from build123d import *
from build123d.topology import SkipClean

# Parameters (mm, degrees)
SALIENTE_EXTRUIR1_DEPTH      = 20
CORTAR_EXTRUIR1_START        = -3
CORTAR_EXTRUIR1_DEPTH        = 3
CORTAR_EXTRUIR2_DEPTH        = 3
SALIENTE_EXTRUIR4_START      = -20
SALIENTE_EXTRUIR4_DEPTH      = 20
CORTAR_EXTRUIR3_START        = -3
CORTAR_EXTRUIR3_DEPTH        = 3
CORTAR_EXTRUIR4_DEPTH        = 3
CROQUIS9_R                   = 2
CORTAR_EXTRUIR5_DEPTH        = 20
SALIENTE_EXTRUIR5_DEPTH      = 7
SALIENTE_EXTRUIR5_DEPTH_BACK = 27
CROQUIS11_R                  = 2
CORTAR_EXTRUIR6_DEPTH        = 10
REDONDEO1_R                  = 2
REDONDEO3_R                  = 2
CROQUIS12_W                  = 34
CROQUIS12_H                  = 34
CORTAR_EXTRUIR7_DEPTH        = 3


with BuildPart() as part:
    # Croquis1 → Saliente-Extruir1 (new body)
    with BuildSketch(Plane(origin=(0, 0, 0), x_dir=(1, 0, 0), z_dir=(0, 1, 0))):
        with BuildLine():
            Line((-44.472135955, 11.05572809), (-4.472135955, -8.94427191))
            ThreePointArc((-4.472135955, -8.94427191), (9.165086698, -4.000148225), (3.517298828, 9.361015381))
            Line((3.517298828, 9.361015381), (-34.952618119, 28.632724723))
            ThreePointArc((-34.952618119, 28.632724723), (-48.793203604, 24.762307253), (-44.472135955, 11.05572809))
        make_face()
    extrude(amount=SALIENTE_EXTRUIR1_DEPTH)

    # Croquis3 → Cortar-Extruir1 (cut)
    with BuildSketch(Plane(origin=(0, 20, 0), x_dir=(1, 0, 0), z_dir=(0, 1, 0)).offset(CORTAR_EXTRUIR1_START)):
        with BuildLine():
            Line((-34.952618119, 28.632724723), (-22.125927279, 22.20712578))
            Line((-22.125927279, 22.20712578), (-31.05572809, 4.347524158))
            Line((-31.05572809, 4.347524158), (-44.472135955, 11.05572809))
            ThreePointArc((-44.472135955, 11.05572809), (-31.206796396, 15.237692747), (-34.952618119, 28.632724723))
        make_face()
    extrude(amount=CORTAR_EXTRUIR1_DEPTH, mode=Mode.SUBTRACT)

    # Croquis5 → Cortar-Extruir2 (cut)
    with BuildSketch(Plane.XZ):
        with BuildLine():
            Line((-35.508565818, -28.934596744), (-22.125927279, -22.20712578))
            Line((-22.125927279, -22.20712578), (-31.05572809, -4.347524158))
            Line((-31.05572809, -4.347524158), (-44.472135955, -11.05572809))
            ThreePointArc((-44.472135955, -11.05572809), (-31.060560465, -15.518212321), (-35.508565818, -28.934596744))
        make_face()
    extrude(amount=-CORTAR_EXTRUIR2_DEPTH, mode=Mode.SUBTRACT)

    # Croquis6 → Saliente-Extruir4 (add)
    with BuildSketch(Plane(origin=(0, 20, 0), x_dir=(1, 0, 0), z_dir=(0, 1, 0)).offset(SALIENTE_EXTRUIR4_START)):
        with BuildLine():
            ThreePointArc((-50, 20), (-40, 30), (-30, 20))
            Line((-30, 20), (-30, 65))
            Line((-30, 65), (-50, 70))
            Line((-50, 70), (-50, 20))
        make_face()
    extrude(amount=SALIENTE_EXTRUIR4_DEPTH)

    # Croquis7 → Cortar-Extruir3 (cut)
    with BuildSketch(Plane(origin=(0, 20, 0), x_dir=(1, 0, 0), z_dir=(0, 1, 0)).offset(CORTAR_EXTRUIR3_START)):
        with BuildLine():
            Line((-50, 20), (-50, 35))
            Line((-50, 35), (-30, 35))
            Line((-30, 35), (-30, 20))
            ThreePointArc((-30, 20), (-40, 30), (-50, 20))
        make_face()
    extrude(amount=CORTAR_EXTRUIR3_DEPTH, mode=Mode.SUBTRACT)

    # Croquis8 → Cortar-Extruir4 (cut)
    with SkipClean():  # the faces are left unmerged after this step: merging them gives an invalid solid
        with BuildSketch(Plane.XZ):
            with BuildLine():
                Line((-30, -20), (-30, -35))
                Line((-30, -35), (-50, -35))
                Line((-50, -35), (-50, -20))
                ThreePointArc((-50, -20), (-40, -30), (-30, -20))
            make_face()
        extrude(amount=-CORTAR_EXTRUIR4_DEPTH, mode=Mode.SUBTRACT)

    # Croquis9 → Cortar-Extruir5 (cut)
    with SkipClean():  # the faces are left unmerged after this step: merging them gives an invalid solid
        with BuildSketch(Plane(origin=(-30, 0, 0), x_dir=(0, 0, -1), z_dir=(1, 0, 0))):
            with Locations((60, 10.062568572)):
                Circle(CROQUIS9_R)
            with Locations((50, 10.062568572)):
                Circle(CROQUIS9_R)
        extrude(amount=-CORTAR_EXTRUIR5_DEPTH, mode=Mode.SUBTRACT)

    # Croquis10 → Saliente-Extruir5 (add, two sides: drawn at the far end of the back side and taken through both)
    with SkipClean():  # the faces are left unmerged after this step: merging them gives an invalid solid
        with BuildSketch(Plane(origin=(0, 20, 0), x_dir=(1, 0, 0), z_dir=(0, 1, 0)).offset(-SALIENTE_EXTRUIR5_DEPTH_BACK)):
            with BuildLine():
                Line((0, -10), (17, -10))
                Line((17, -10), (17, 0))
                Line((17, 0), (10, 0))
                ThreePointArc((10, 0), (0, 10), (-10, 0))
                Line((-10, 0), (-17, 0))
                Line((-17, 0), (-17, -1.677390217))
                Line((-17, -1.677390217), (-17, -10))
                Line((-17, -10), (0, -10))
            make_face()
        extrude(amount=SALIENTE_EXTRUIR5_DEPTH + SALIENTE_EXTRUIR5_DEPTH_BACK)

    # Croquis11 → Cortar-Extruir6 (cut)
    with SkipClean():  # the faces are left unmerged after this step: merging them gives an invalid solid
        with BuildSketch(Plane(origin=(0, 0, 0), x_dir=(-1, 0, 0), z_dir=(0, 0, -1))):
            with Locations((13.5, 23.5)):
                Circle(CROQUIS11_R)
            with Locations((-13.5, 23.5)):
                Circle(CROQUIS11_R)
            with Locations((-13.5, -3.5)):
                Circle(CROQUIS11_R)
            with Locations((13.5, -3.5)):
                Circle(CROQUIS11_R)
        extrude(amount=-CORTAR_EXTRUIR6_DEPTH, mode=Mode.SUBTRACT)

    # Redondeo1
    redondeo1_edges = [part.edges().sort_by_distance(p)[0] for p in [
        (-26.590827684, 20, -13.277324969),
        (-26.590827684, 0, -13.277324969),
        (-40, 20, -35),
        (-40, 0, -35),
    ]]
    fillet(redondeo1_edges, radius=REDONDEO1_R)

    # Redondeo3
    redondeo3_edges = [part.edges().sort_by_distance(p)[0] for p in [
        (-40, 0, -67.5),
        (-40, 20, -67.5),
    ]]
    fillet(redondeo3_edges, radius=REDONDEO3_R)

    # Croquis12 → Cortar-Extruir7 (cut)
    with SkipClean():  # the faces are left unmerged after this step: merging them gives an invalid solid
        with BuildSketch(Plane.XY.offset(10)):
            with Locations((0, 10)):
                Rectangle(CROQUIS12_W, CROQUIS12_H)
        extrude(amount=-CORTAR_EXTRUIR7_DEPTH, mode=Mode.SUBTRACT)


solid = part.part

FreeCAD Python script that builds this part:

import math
import FreeCAD as App
import Part
import Sketcher

V = App.Vector


def edges_at(feature, points):
    """Names of the edges that pass closest to the given points."""
    edges = feature.Shape.Edges
    near = lambda p: min(range(len(edges)), key=lambda i: edges[i].distToShape(Part.Vertex(*p))[0])
    return sorted({f"Edge{near(p) + 1}" for p in points})


def add_polygon(sketch, points):
    """Adds a closed chain of lines whose ends are joined by coincident constraints."""
    first, n = sketch.GeometryCount, len(points)
    for a, b in zip(points, points[1:] + points[:1]):
        sketch.addGeometry(Part.LineSegment(App.Vector(*a, 0), App.Vector(*b, 0)), False)
    for i in range(n):
        sketch.addConstraint(Sketcher.Constraint("Coincident", first + i, 2, first + (i + 1) % n, 1))

doc = App.newDocument("Part")
params = doc.addObject("Spreadsheet::Sheet", "Params")
for row, (alias, value) in enumerate([
    ("sketch1_radius", "10 mm"),
    ("pad1_length", "20 mm"),
    ("sketch2_radius", "10 mm"),
    ("sketch2_length", "15 mm"),
    ("pocket1_length", "3 mm"),
    ("sketch3_radius", "10 mm"),
    ("sketch3_length", "15 mm"),
    ("pocket2_length", "3 mm"),
    ("sketch4_radius", "10 mm"),
    ("sketch4_height", "45 mm"),
    ("sketch4_height2", "50 mm"),
    ("pad2_length", "20 mm"),
    ("sketch5_radius", "10 mm"),
    ("sketch5_height", "15 mm"),
    ("pocket3_length", "3 mm"),
    ("sketch6_radius", "10 mm"),
    ("sketch6_height", "15 mm"),
    ("pocket4_length", "3 mm"),
    ("sketch7_diameter", "4 mm"),
    ("pocket5_length", "20 mm"),
    ("sketch8_radius", "10 mm"),
    ("sketch8_width", "7 mm"),
    ("sketch8_height", "10 mm"),
    ("pad3_length", "7 mm"),
    ("pad3_length2", "27 mm"),
    ("sketch9_diameter", "4 mm"),
    ("pocket6_length", "10 mm"),
    ("fillet_radius", "2 mm"),
    ("fillet2_radius", "2 mm"),
    ("sketch10_width", "34 mm"),
    ("pocket7_length", "3 mm"),
], start=1):
    params.set(f"A{row}", alias)
    params.set(f"B{row}", "=" + value)
    params.setAlias(f"B{row}", alias)

body = doc.addObject("PartDesign::Body", "Body")

# Sketch on XZ plane
sketch1 = body.newObject("Sketcher::SketchObject", "Sketch")
sketch1.AttachmentSupport = (doc.getObject("XZ_Plane"), [""])
sketch1.MapMode = "FlatFace"
sketch1.addGeometry(Part.LineSegment(V(-44, -11, 0), V(-4, 9, 0)), False)
sketch1.addGeometry(Part.ArcOfCircle(Part.Circle(V(0, 0, 0), V(0, 0, 1), 10), math.radians(-69), math.radians(117)), False)
sketch1.addGeometry(Part.LineSegment(V(4, -9, 0), V(-35, -29, 0)), False)
sketch1.addGeometry(Part.ArcOfCircle(Part.Circle(V(-40, -20, 0), V(0, 0, 1), 10), math.radians(117), math.radians(300)), False)
sketch1.addConstraint(Sketcher.Constraint("Tangent", 0, 2, 1, 2))
sketch1.addConstraint(Sketcher.Constraint("Coincident", 1, 1, 2, 1))
sketch1.addConstraint(Sketcher.Constraint("Coincident", 2, 2, 3, 2))
sketch1.addConstraint(Sketcher.Constraint("Tangent", 3, 1, 0, 1))
sketch1.addConstraint(Sketcher.Constraint("Coincident", 1, 3, -1, 1))
sketch1.addConstraint(Sketcher.Constraint("Equal", 1, 3))
sketch1.addConstraint(Sketcher.Constraint("Radius", 1, 10.0))
sketch1.addConstraint(Sketcher.Constraint("DistanceX", 3, 3, -1, 1, 40.0))
sketch1.addConstraint(Sketcher.Constraint("DistanceY", 3, 3, -1, 1, 20.0))
sketch1.addConstraint(Sketcher.Constraint("DistanceX", -1, 1, 1, 1, 3.517299))
sketch1.addConstraint(Sketcher.Constraint("DistanceX", 2, 2, -1, 1, 34.952618))
sketch1.setExpression("Constraints[6]", "Params.sketch1_radius")
pad1 = body.newObject("PartDesign::Pad", "Pad")
pad1.Profile = sketch1
pad1.setExpression("Length", "Params.pad1_length")
pad1.Reversed = True

# Sketch on XZ plane
sketch2 = body.newObject("Sketcher::SketchObject", "Sketch001")
sketch2.AttachmentSupport = (doc.getObject("XZ_Plane"), [""])
sketch2.MapMode = "FlatFace"
sketch2.AttachmentOffset = App.Placement(V(0, 0, -17), App.Rotation())
sketch2.addGeometry(Part.LineSegment(V(-22, -22, 0), V(-35, -29, 0)), False)
sketch2.addGeometry(Part.ArcOfCircle(Part.Circle(V(-40, -20, 0), V(0, 0, 1), 10), math.radians(-60), math.radians(117)), False)
sketch2.addGeometry(Part.LineSegment(V(-44, -11, 0), V(-31, -4, 0)), False)
sketch2.addGeometry(Part.LineSegment(V(-31, -4, 0), V(-22, -22, 0)), False)
sketch2.addConstraint(Sketcher.Constraint("Coincident", 0, 2, 1, 1))
sketch2.addConstraint(Sketcher.Constraint("Tangent", 1, 2, 2, 1))
sketch2.addConstraint(Sketcher.Constraint("Coincident", 2, 2, 3, 1))
sketch2.addConstraint(Sketcher.Constraint("Coincident", 3, 2, 0, 1))
sketch2.addConstraint(Sketcher.Constraint("Perpendicular", 2, 3))
sketch2.addConstraint(Sketcher.Constraint("Radius", 1, 10.0))
sketch2.addConstraint(Sketcher.Constraint("Distance", 2, 15.0))
sketch2.addConstraint(Sketcher.Constraint("DistanceX", 1, 3, -1, 1, 40.0))
sketch2.addConstraint(Sketcher.Constraint("DistanceY", 1, 3, -1, 1, 20.0))
sketch2.addConstraint(Sketcher.Constraint("DistanceY", 0, 2, 2, 2, 24.285201))
sketch2.addConstraint(Sketcher.Constraint("DistanceY", 0, 2, 3, 2, 6.425599))
sketch2.addConstraint(Sketcher.Constraint("DistanceX", 2, 2, 3, 2, 8.929801))
sketch2.setExpression("Constraints[5]", "Params.sketch2_radius")
sketch2.setExpression("Constraints[6]", "Params.sketch2_length")
pocket1 = body.newObject("PartDesign::Pocket", "Pocket")
pocket1.Profile = sketch2
pocket1.setExpression("Length", "Params.pocket1_length")

# Sketch on XZ plane
sketch3 = body.newObject("Sketcher::SketchObject", "Sketch002")
sketch3.AttachmentSupport = (doc.getObject("XZ_Plane"), [""])
sketch3.MapMode = "FlatFace"
sketch3.addGeometry(Part.LineSegment(V(-36, -29, 0), V(-22, -22, 0)), False)
sketch3.addGeometry(Part.LineSegment(V(-22, -22, 0), V(-31, -4, 0)), False)
sketch3.addGeometry(Part.LineSegment(V(-31, -4, 0), V(-44, -11, 0)), False)
sketch3.addGeometry(Part.ArcOfCircle(Part.Circle(V(-40, -20, 0), V(0, 0, 1), 10), math.radians(-63), math.radians(117)), False)
sketch3.addConstraint(Sketcher.Constraint("Coincident", 0, 2, 1, 1))
sketch3.addConstraint(Sketcher.Constraint("Coincident", 1, 2, 2, 1))
sketch3.addConstraint(Sketcher.Constraint("Tangent", 2, 2, 3, 2))
sketch3.addConstraint(Sketcher.Constraint("Tangent", 3, 1, 0, 1))
sketch3.addConstraint(Sketcher.Constraint("Perpendicular", 1, 2))
sketch3.addConstraint(Sketcher.Constraint("Radius", 3, 10.0))
sketch3.addConstraint(Sketcher.Constraint("Distance", 2, 15.0))
sketch3.addConstraint(Sketcher.Constraint("DistanceX", 3, 3, -1, 1, 40.0))
sketch3.addConstraint(Sketcher.Constraint("DistanceY", 3, 3, -1, 1, 20.0))
sketch3.addConstraint(Sketcher.Constraint("DistanceX", 1, 2, 0, 2, 8.929801))
sketch3.addConstraint(Sketcher.Constraint("DistanceY", 0, 2, 1, 2, 17.859602))
sketch3.setExpression("Constraints[5]", "Params.sketch3_radius")
sketch3.setExpression("Constraints[6]", "Params.sketch3_length")
pocket2 = body.newObject("PartDesign::Pocket", "Pocket001")
pocket2.Profile = sketch3
pocket2.setExpression("Length", "Params.pocket2_length")

# Sketch on XZ plane
sketch4 = body.newObject("Sketcher::SketchObject", "Sketch003")
sketch4.AttachmentSupport = (doc.getObject("XZ_Plane"), [""])
sketch4.MapMode = "FlatFace"
sketch4.addGeometry(Part.ArcOfCircle(Part.Circle(V(-40, -20, 0), V(0, 0, 1), 10), math.radians(180), math.radians(360)), False)
sketch4.addGeometry(Part.LineSegment(V(-30, -20, 0), V(-30, -65, 0)), False)
sketch4.addGeometry(Part.LineSegment(V(-30, -65, 0), V(-50, -70, 0)), False)
sketch4.addGeometry(Part.LineSegment(V(-50, -70, 0), V(-50, -20, 0)), False)
sketch4.addConstraint(Sketcher.Constraint("Tangent", 0, 2, 1, 1))
sketch4.addConstraint(Sketcher.Constraint("Coincident", 1, 2, 2, 1))
sketch4.addConstraint(Sketcher.Constraint("Coincident", 2, 2, 3, 1))
sketch4.addConstraint(Sketcher.Constraint("Tangent", 3, 2, 0, 1))
sketch4.addConstraint(Sketcher.Constraint("Vertical", 1))
sketch4.addConstraint(Sketcher.Constraint("Vertical", 3))
sketch4.addConstraint(Sketcher.Constraint("Radius", 0, 10.0))
sketch4.addConstraint(Sketcher.Constraint("DistanceY", 1, 2, 1, 1, 45.0))
sketch4.addConstraint(Sketcher.Constraint("DistanceY", 3, 1, 3, 2, 50.0))
sketch4.addConstraint(Sketcher.Constraint("DistanceX", 0, 3, -1, 1, 40.0))
sketch4.addConstraint(Sketcher.Constraint("DistanceY", 0, 3, -1, 1, 20.0))
sketch4.setExpression("Constraints[6]", "Params.sketch4_radius")
sketch4.setExpression("Constraints[7]", "Params.sketch4_height")
sketch4.setExpression("Constraints[8]", "Params.sketch4_height2")
pad2 = body.newObject("PartDesign::Pad", "Pad001")
pad2.Profile = sketch4
pad2.setExpression("Length", "Params.pad2_length")
pad2.Reversed = True

# Sketch on XZ plane
sketch5 = body.newObject("Sketcher::SketchObject", "Sketch004")
sketch5.AttachmentSupport = (doc.getObject("XZ_Plane"), [""])
sketch5.MapMode = "FlatFace"
sketch5.AttachmentOffset = App.Placement(V(0, 0, -17), App.Rotation())
sketch5.addGeometry(Part.LineSegment(V(-50, -35, 0), V(-50, -20, 0)), False)
sketch5.addGeometry(Part.ArcOfCircle(Part.Circle(V(-40, -20, 0), V(0, 0, 1), 10), math.radians(180), math.radians(360)), False)
sketch5.addGeometry(Part.LineSegment(V(-30, -20, 0), V(-30, -35, 0)), False)
sketch5.addGeometry(Part.LineSegment(V(-30, -35, 0), V(-50, -35, 0)), False)
sketch5.addConstraint(Sketcher.Constraint("Tangent", 0, 2, 1, 1))
sketch5.addConstraint(Sketcher.Constraint("Tangent", 1, 2, 2, 1))
sketch5.addConstraint(Sketcher.Constraint("Coincident", 2, 2, 3, 1))
sketch5.addConstraint(Sketcher.Constraint("Coincident", 3, 2, 0, 1))
sketch5.addConstraint(Sketcher.Constraint("Vertical", 0))
sketch5.addConstraint(Sketcher.Constraint("Vertical", 2))
sketch5.addConstraint(Sketcher.Constraint("Horizontal", 3))
sketch5.addConstraint(Sketcher.Constraint("Radius", 1, 10.0))
sketch5.addConstraint(Sketcher.Constraint("DistanceY", 0, 1, 0, 2, 15.0))
sketch5.addConstraint(Sketcher.Constraint("DistanceX", 1, 3, -1, 1, 40.0))
sketch5.addConstraint(Sketcher.Constraint("DistanceY", 1, 3, -1, 1, 20.0))
sketch5.setExpression("Constraints[7]", "Params.sketch5_radius")
sketch5.setExpression("Constraints[8]", "Params.sketch5_height")
pocket3 = body.newObject("PartDesign::Pocket", "Pocket002")
pocket3.Profile = sketch5
pocket3.setExpression("Length", "Params.pocket3_length")

# Sketch on XZ plane
sketch6 = body.newObject("Sketcher::SketchObject", "Sketch005")
sketch6.AttachmentSupport = (doc.getObject("XZ_Plane"), [""])
sketch6.MapMode = "FlatFace"
sketch6.addGeometry(Part.LineSegment(V(-30, -35, 0), V(-30, -20, 0)), False)
sketch6.addGeometry(Part.ArcOfCircle(Part.Circle(V(-40, -20, 0), V(0, 0, 1), 10), math.radians(180), math.radians(360)), False)
sketch6.addGeometry(Part.LineSegment(V(-50, -20, 0), V(-50, -35, 0)), False)
sketch6.addGeometry(Part.LineSegment(V(-50, -35, 0), V(-30, -35, 0)), False)
sketch6.addConstraint(Sketcher.Constraint("Tangent", 0, 2, 1, 2))
sketch6.addConstraint(Sketcher.Constraint("Tangent", 1, 1, 2, 1))
sketch6.addConstraint(Sketcher.Constraint("Coincident", 2, 2, 3, 1))
sketch6.addConstraint(Sketcher.Constraint("Coincident", 3, 2, 0, 1))
sketch6.addConstraint(Sketcher.Constraint("Vertical", 0))
sketch6.addConstraint(Sketcher.Constraint("Vertical", 2))
sketch6.addConstraint(Sketcher.Constraint("Horizontal", 3))
sketch6.addConstraint(Sketcher.Constraint("Radius", 1, 10.0))
sketch6.addConstraint(Sketcher.Constraint("DistanceY", 0, 1, 0, 2, 15.0))
sketch6.addConstraint(Sketcher.Constraint("DistanceX", 1, 3, -1, 1, 40.0))
sketch6.addConstraint(Sketcher.Constraint("DistanceY", 1, 3, -1, 1, 20.0))
sketch6.setExpression("Constraints[7]", "Params.sketch6_radius")
sketch6.setExpression("Constraints[8]", "Params.sketch6_height")
pocket4 = body.newObject("PartDesign::Pocket", "Pocket003")
pocket4.Profile = sketch6
pocket4.setExpression("Length", "Params.pocket4_length")

# Sketch on YZ plane
sketch7 = body.newObject("Sketcher::SketchObject", "Sketch006")
sketch7.AttachmentSupport = (doc.getObject("YZ_Plane"), [""])
sketch7.MapMode = "FlatFace"
sketch7.AttachmentOffset = App.Placement(V(0, 0, -30), App.Rotation())
sketch7.addGeometry(Part.Circle(V(10.1, -60, 0), V(0, 0, 1), 2), False)
sketch7.addGeometry(Part.Circle(V(10.1, -50, 0), V(0, 0, 1), 2), False)
sketch7.addConstraint(Sketcher.Constraint("Equal", 0, 1))
sketch7.addConstraint(Sketcher.Constraint("Vertical", 0, 3, 1, 3))
sketch7.addConstraint(Sketcher.Constraint("Diameter", 0, 4.0))
sketch7.addConstraint(Sketcher.Constraint("DistanceY", 0, 3, -1, 1, 60.0))
sketch7.addConstraint(Sketcher.Constraint("DistanceY", 1, 3, -1, 1, 50.0))
sketch7.addConstraint(Sketcher.Constraint("DistanceX", -1, 1, 0, 3, 10.062569))
sketch7.setExpression("Constraints[2]", "Params.sketch7_diameter")
pocket5 = body.newObject("PartDesign::Pocket", "Pocket004")
pocket5.Profile = sketch7
pocket5.setExpression("Length", "Params.pocket5_length")

# Sketch on XZ plane
sketch8 = body.newObject("Sketcher::SketchObject", "Sketch007")
sketch8.AttachmentSupport = (doc.getObject("XZ_Plane"), [""])
sketch8.MapMode = "FlatFace"
sketch8.AttachmentOffset = App.Placement(V(0, 0, -20), App.Rotation())
sketch8.addGeometry(Part.LineSegment(V(17, 10, 0), V(17, 0, 0)), False)
sketch8.addGeometry(Part.LineSegment(V(17, 0, 0), V(10, 0, 0)), False)
sketch8.addGeometry(Part.ArcOfCircle(Part.Circle(V(0, 0, 0), V(0, 0, 1), 10), math.radians(180), math.radians(360)), False)
sketch8.addGeometry(Part.LineSegment(V(-10, 0, 0), V(-17, 0, 0)), False)
sketch8.addGeometry(Part.LineSegment(V(-17, 0, 0), V(-17, 10, 0)), False)
sketch8.addGeometry(Part.LineSegment(V(-17, 10, 0), V(17, 10, 0)), False)
sketch8.addConstraint(Sketcher.Constraint("Coincident", 0, 2, 1, 1))
sketch8.addConstraint(Sketcher.Constraint("Coincident", 1, 2, 2, 2))
sketch8.addConstraint(Sketcher.Constraint("Coincident", 2, 1, 3, 1))
sketch8.addConstraint(Sketcher.Constraint("Coincident", 3, 2, 4, 1))
sketch8.addConstraint(Sketcher.Constraint("Coincident", 4, 2, 5, 1))
sketch8.addConstraint(Sketcher.Constraint("Coincident", 5, 2, 0, 1))
sketch8.addConstraint(Sketcher.Constraint("Vertical", 0))
sketch8.addConstraint(Sketcher.Constraint("Horizontal", 1))
sketch8.addConstraint(Sketcher.Constraint("Horizontal", 3))
sketch8.addConstraint(Sketcher.Constraint("Vertical", 4))
sketch8.addConstraint(Sketcher.Constraint("Horizontal", 5))
sketch8.addConstraint(Sketcher.Constraint("Coincident", 2, 3, -1, 1))
sketch8.addConstraint(Sketcher.Constraint("Symmetric", 0, 2, 3, 2, -1, 1))
sketch8.addConstraint(Sketcher.Constraint("PointOnObject", 0, 2, -1))
sketch8.addConstraint(Sketcher.Constraint("Radius", 2, 10.0))
sketch8.addConstraint(Sketcher.Constraint("DistanceX", 1, 2, 1, 1, 7.0))
sketch8.addConstraint(Sketcher.Constraint("DistanceY", 0, 2, 0, 1, 10.0))
sketch8.setExpression("Constraints[14]", "Params.sketch8_radius")
sketch8.setExpression("Constraints[15]", "Params.sketch8_width")
sketch8.setExpression("Constraints[16]", "Params.sketch8_height")
pad3 = body.newObject("PartDesign::Pad", "Pad002")
pad3.Profile = sketch8
pad3.Type = "TwoLengths"
pad3.setExpression("Length", "Params.pad3_length")
pad3.setExpression("Length2", "Params.pad3_length2")
pad3.Reversed = True

# Sketch on XY plane
sketch9 = body.newObject("Sketcher::SketchObject", "Sketch008")
sketch9.AttachmentSupport = (doc.getObject("XY_Plane"), [""])
sketch9.MapMode = "FlatFace"
sketch9.addGeometry(Part.Circle(V(-13.5, 23.5, 0), V(0, 0, 1), 2), False)
sketch9.addGeometry(Part.Circle(V(13.5, 23.5, 0), V(0, 0, 1), 2), False)
sketch9.addGeometry(Part.Circle(V(13.5, -3.5, 0), V(0, 0, 1), 2), False)
sketch9.addGeometry(Part.Circle(V(-13.5, -3.5, 0), V(0, 0, 1), 2), False)
sketch9.addConstraint(Sketcher.Constraint("Equal", 0, 1))
sketch9.addConstraint(Sketcher.Constraint("Equal", 1, 2))
sketch9.addConstraint(Sketcher.Constraint("Equal", 2, 3))
sketch9.addConstraint(Sketcher.Constraint("Symmetric", 0, 3, 1, 3, -2))
sketch9.addConstraint(Sketcher.Constraint("Symmetric", 2, 3, 3, 3, -2))
sketch9.addConstraint(Sketcher.Constraint("Vertical", 1, 3, 2, 3))
sketch9.addConstraint(Sketcher.Constraint("Diameter", 0, 4.0))
sketch9.addConstraint(Sketcher.Constraint("DistanceX", 0, 3, 1, 3, 27.0))
sketch9.addConstraint(Sketcher.Constraint("DistanceY", 2, 3, 1, 3, 27.0))
sketch9.addConstraint(Sketcher.Constraint("DistanceY", -1, 1, 0, 3, 23.5))
sketch9.setExpression("Constraints[6]", "Params.sketch9_diameter")
pocket6 = body.newObject("PartDesign::Pocket", "Pocket005")
pocket6.Profile = sketch9
pocket6.setExpression("Length", "Params.pocket6_length")
pocket6.Reversed = True
doc.recompute()

fillet = body.newObject("PartDesign::Fillet", "Fillet")
fillet.Base = (pocket6, edges_at(pocket6, [
    (-26.591, 20, -13.277),
    (-26.591, 0, -13.277),
    (-40, 20, -35),
    (-40, 0, -35),
]))
fillet.setExpression("Radius", "Params.fillet_radius")
doc.recompute()

fillet2 = body.newObject("PartDesign::Fillet", "Fillet001")
fillet2.Base = (fillet, edges_at(fillet, [(-40, 0, -67.5), (-40, 20, -67.5)]))
fillet2.setExpression("Radius", "Params.fillet2_radius")

# Sketch on XY plane
sketch10 = body.newObject("Sketcher::SketchObject", "Sketch009")
sketch10.AttachmentSupport = (doc.getObject("XY_Plane"), [""])
sketch10.MapMode = "FlatFace"
sketch10.AttachmentOffset = App.Placement(V(0, 0, 10), App.Rotation())
add_polygon(sketch10, [(-17, 27), (-17, -7), (17, -7), (17, 27)])  # lines 0-3
sketch10.addConstraint(Sketcher.Constraint("Vertical", 0))
sketch10.addConstraint(Sketcher.Constraint("Horizontal", 1))
sketch10.addConstraint(Sketcher.Constraint("Vertical", 2))
sketch10.addConstraint(Sketcher.Constraint("Horizontal", 3))
sketch10.addConstraint(Sketcher.Constraint("Equal", 3, 0))
sketch10.addConstraint(Sketcher.Constraint("DistanceX", 1, 1, 1, 2, 34.0))
sketch10.addConstraint(Sketcher.Constraint("DistanceX", 0, 2, -1, 1, 17.0))
sketch10.addConstraint(Sketcher.Constraint("DistanceY", 0, 2, -1, 1, 7.0))
sketch10.setExpression("Constraints[9]", "Params.sketch10_width")
pocket7 = body.newObject("PartDesign::Pocket", "Pocket006")
pocket7.Profile = sketch10
pocket7.setExpression("Length", "Params.pocket7_length")

doc.recompute()
